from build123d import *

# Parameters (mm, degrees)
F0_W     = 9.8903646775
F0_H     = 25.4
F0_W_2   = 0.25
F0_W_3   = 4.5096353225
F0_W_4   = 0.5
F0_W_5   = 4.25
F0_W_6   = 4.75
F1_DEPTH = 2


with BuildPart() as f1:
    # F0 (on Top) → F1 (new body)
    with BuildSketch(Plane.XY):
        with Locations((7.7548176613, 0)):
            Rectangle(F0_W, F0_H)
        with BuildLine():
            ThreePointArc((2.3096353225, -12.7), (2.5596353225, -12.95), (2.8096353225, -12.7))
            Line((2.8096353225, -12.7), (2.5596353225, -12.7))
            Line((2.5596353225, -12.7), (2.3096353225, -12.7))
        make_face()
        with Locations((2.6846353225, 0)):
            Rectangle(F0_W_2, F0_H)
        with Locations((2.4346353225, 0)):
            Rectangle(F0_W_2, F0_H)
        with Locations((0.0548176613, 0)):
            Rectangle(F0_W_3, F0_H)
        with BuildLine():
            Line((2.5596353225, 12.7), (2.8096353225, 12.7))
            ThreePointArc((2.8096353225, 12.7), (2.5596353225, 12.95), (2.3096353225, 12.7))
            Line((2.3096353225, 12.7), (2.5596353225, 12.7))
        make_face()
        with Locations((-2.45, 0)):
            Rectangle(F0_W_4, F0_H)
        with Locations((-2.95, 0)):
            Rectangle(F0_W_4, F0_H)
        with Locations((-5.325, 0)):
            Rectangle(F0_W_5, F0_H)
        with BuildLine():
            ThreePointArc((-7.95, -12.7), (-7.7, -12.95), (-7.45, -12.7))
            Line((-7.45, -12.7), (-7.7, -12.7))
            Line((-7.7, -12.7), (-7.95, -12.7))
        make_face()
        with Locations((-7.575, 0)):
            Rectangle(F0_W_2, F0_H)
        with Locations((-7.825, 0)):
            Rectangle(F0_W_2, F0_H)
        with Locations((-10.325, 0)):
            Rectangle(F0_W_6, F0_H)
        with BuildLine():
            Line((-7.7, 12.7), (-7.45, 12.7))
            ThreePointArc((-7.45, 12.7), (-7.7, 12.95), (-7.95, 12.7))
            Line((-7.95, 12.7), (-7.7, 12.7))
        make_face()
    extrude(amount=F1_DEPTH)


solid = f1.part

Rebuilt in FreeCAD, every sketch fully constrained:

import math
import FreeCAD as App
import Part
import Sketcher

V = App.Vector

doc = App.newDocument("Part")
body = doc.addObject("PartDesign::Body", "Body")

sketch1 = body.newObject("Sketcher::SketchObject", "Sketch")
sketch1.AttachmentSupport = (doc.getObject("XY_Plane"), [""])
sketch1.MapMode = "FlatFace"
sketch1.addGeometry([
    Part.LineSegment(V(2.81, -12.7, 0), V(12.7, -12.7, 0)),
    Part.LineSegment(V(12.7, -12.7, 0), V(12.7, 12.7, 0)),
    Part.LineSegment(V(12.7, 12.7, 0), V(2.81, 12.7, 0)),
    Part.ArcOfCircle(Part.Circle(V(2.56, 12.7, 0), V(0, 0, 1), 0.25), math.radians(0), math.radians(180)),
    Part.LineSegment(V(2.31, 12.7, 0), V(-7.45, 12.7, 0)),
    Part.ArcOfCircle(Part.Circle(V(-7.7, 12.7, 0), V(0, 0, 1), 0.25), math.radians(0), math.radians(180)),
    Part.LineSegment(V(-7.95, 12.7, 0), V(-12.7, 12.7, 0)),
    Part.LineSegment(V(-12.7, 12.7, 0), V(-12.7, -12.7, 0)),
    Part.LineSegment(V(-12.7, -12.7, 0), V(-7.95, -12.7, 0)),
    Part.ArcOfCircle(Part.Circle(V(-7.7, -12.7, 0), V(0, 0, 1), 0.25), math.radians(180), math.radians(360)),
    Part.LineSegment(V(-7.45, -12.7, 0), V(2.31, -12.7, 0)),
    Part.ArcOfCircle(Part.Circle(V(2.56, -12.7, 0), V(0, 0, 1), 0.25), math.radians(180), math.radians(360)),
], False)
sketch1.addConstraint([
    Sketcher.Constraint("Coincident", 0, 2, 1, 1),
    Sketcher.Constraint("Coincident", 1, 2, 2, 1),
    Sketcher.Constraint("Coincident", 2, 2, 3, 1),
    Sketcher.Constraint("Coincident", 3, 2, 4, 1),
    Sketcher.Constraint("Coincident", 4, 2, 5, 1),
    Sketcher.Constraint("Coincident", 5, 2, 6, 1),
    Sketcher.Constraint("Coincident", 6, 2, 7, 1),
    Sketcher.Constraint("Coincident", 7, 2, 8, 1),
    Sketcher.Constraint("Coincident", 8, 2, 9, 1),
    Sketcher.Constraint("Coincident", 9, 2, 10, 1),
    Sketcher.Constraint("Coincident", 10, 2, 11, 1),
    Sketcher.Constraint("Coincident", 11, 2, 0, 1),
    Sketcher.Constraint("Horizontal", 0),
    Sketcher.Constraint("Vertical", 1),
    Sketcher.Constraint("Horizontal", 2),
    Sketcher.Constraint("Horizontal", 4),
    Sketcher.Constraint("Horizontal", 6),
    Sketcher.Constraint("Vertical", 7),
    Sketcher.Constraint("Horizontal", 8),
    Sketcher.Constraint("Horizontal", 10),
    Sketcher.Constraint("Equal", 3, 5),
    Sketcher.Constraint("Equal", 5, 9),
    Sketcher.Constraint("Equal", 9, 11),
    Sketcher.Constraint("Symmetric", 0, 2, 6, 2, -1, 1),
    Sketcher.Constraint("Symmetric", 5, 3, 9, 3, -1),
    Sketcher.Constraint("Symmetric", 3, 3, 11, 3, -1),
    Sketcher.Constraint("Horizontal", 3, 3, 5, 3),
    Sketcher.Constraint("Horizontal", 11, 3, 0, 2),
    Sketcher.Constraint("Horizontal", 5, 3, 1, 2),
    Sketcher.Constraint("Horizontal", 2, 2, 3, 2),
    Sketcher.Constraint("Horizontal", 0, 2, 7, 2),
    Sketcher.Constraint("Horizontal", 8, 2, 9, 2),
    Sketcher.Constraint("Radius", 3, 0.25),
    Sketcher.Constraint("DistanceY", 1, 1, 1, 2, 25.4),
    Sketcher.Constraint("DistanceX", 6, 2, 5, 3, 5.0),
    Sketcher.Constraint("DistanceX", 5, 3, -1, 1, 7.7),
    Sketcher.Constraint("DistanceX", 0, 1, 0, 2, 9.890365),
])
pad1 = body.newObject("PartDesign::Pad", "Pad")
pad1.Profile = sketch1
pad1.Length = 2

doc.recompute()
